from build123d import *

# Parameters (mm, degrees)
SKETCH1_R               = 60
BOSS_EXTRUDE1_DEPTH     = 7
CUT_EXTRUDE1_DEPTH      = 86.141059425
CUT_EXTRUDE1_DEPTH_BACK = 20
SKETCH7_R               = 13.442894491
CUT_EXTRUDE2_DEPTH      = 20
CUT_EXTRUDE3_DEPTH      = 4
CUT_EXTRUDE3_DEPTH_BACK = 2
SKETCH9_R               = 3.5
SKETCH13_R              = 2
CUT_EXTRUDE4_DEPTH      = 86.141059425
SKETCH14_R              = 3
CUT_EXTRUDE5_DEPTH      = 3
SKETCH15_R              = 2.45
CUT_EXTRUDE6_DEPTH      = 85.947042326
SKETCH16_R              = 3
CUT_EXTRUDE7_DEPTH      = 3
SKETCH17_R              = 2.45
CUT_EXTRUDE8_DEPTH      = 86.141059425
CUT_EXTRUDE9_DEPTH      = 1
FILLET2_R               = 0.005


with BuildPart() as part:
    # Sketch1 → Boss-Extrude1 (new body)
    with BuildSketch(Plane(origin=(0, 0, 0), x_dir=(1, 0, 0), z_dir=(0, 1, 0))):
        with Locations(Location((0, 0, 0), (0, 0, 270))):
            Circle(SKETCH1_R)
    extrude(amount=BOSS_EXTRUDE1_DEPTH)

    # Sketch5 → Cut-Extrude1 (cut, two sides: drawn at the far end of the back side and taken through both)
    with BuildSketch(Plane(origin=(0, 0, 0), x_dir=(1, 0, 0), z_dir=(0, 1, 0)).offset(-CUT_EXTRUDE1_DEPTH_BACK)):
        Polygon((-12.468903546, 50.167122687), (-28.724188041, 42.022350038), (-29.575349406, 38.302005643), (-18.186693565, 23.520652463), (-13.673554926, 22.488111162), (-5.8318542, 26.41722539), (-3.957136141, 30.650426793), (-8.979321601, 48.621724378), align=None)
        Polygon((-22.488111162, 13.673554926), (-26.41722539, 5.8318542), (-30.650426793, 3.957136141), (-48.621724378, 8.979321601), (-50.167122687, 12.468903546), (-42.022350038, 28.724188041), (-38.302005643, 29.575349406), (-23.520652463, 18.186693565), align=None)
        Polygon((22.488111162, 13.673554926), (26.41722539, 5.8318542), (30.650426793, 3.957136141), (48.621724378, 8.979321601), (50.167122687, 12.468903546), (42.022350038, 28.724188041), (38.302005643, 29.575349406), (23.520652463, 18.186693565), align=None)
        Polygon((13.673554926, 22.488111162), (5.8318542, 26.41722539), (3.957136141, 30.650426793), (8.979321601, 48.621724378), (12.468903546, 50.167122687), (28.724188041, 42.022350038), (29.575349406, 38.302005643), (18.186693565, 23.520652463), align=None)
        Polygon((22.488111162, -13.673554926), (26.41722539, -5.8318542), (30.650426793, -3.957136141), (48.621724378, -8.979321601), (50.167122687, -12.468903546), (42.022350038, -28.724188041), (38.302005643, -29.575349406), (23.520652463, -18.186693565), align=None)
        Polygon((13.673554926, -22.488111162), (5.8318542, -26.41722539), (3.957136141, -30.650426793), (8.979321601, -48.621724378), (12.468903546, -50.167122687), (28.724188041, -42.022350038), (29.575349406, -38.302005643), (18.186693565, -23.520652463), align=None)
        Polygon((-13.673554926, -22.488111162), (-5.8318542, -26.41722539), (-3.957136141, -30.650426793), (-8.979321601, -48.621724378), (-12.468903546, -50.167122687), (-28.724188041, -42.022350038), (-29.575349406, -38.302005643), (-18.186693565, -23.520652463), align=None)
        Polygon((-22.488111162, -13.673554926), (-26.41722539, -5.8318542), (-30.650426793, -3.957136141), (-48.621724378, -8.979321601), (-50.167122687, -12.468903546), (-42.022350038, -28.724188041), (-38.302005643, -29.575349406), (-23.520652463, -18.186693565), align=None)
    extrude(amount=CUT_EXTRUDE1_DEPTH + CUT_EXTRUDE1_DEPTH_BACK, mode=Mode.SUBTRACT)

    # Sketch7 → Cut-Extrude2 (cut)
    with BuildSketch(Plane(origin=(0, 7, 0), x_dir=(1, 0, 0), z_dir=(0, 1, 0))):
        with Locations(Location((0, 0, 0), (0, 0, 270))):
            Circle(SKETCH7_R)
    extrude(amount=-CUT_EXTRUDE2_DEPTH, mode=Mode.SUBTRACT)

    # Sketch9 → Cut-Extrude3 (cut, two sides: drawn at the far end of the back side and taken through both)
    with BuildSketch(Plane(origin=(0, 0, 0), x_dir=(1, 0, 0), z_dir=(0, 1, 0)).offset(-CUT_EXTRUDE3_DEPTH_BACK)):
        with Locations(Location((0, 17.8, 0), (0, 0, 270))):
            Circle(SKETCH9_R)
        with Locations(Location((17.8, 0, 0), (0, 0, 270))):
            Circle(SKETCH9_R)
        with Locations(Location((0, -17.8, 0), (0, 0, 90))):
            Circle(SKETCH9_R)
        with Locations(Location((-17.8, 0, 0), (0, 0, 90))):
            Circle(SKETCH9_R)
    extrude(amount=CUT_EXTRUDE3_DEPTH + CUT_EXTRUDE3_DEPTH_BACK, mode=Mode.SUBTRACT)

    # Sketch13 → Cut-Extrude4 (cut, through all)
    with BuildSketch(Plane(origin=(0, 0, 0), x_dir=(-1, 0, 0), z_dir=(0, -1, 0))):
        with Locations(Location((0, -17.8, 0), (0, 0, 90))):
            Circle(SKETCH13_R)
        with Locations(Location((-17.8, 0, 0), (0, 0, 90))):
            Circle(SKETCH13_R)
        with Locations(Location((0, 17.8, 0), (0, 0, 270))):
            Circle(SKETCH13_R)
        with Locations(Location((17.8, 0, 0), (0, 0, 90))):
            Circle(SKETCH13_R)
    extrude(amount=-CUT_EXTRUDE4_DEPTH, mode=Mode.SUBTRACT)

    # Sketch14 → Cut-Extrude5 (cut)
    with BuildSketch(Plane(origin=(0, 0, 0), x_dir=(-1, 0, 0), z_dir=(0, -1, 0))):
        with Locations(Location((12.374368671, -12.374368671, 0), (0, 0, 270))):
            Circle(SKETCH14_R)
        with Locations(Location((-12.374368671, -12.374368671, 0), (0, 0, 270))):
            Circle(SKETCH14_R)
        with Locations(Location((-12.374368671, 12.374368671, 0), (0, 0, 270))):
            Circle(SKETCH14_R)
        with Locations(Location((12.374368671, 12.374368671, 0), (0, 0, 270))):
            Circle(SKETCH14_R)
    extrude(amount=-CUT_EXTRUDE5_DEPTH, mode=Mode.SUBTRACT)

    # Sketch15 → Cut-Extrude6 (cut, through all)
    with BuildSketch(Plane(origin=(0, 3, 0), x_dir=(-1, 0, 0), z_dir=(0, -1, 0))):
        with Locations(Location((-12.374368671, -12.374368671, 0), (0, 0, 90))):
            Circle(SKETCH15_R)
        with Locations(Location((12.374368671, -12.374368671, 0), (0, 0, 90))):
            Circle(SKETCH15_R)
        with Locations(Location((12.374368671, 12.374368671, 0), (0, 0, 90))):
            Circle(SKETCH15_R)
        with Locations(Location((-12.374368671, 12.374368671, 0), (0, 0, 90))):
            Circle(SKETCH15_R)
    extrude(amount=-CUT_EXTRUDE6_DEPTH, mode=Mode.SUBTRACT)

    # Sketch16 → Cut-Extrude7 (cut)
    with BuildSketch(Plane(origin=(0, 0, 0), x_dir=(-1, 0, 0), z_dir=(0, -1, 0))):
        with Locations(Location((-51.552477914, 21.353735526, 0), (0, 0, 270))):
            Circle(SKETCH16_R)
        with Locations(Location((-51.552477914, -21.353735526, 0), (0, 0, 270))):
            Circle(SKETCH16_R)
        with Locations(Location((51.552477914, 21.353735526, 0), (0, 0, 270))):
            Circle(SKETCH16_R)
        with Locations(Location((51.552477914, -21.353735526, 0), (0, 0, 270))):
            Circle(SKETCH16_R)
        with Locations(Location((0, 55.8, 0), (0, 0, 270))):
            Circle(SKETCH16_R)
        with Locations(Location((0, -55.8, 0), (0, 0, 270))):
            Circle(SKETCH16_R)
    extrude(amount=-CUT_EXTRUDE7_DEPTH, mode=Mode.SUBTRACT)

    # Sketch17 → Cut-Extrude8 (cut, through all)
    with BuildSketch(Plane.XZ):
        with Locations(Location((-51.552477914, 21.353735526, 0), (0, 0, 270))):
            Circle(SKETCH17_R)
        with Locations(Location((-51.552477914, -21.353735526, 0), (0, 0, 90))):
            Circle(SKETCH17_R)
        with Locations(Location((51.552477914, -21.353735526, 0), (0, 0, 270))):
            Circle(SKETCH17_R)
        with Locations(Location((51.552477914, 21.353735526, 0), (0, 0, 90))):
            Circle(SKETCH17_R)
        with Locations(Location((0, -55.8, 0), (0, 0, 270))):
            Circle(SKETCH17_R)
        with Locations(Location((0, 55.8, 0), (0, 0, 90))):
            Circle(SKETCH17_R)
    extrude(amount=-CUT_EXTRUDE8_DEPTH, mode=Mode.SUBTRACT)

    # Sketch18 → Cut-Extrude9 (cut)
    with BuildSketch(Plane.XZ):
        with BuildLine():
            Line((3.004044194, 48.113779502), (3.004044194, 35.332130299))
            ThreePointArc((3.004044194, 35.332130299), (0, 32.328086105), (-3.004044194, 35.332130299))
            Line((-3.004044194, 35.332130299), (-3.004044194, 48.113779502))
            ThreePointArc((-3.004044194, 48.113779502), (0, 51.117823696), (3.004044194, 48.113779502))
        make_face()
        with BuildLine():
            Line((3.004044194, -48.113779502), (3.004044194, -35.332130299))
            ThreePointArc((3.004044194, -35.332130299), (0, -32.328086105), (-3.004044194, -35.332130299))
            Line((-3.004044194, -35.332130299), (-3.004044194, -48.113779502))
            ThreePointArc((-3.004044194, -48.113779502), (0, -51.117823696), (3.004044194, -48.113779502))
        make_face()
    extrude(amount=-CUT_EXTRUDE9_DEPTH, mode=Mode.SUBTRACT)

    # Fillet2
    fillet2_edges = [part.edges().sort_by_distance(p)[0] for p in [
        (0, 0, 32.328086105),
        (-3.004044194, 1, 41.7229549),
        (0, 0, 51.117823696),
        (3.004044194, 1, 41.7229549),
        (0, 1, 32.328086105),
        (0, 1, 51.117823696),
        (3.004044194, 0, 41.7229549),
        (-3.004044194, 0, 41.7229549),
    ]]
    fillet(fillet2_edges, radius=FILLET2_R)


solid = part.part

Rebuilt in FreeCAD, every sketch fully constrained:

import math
import FreeCAD as App
import Part
import Sketcher
Q = App.Units.Quantity


def edges_at(feature, points):
    """Names of the edges that pass closest to the given points."""
    edges = feature.Shape.Edges
    near = lambda p: min(range(len(edges)), key=lambda i: edges[i].distToShape(Part.Vertex(*p))[0])
    return sorted({f"Edge{near(p) + 1}" for p in points})

doc = App.newDocument("Part")
body = doc.addObject("PartDesign::Body", "Body")

sketch1 = body.newObject("Sketcher::SketchObject", "Sketch")
sketch1.AttachmentSupport = (doc.getObject("XZ_Plane"), [""])
sketch1.MapMode = "FlatFace"
sketch1.addGeometry(Part.Circle(App.Vector(0, 0, 0), App.Vector(0, 0, 1), 60), False)
sketch1.addConstraint([
    Sketcher.Constraint("Coincident", 0, 3, -1, 1),
    Sketcher.Constraint("Diameter", 0, Q("120 mm")),
])
pad1 = body.newObject("PartDesign::Pad", "Pad")
pad1.Profile = sketch1
pad1.Length = 7
pad1.Reversed = True

sketch2 = body.newObject("Sketcher::SketchObject", "Sketch001")
sketch2.AttachmentSupport = (doc.getObject("XZ_Plane"), [""])
sketch2.MapMode = "FlatFace"
sketch2.addGeometry([
    Part.LineSegment(App.Vector(-12.5, -50.2, 0), App.Vector(-28.7, -42, 0)),
    Part.LineSegment(App.Vector(-28.7, -42, 0), App.Vector(-29.6, -38.3, 0)),
    Part.LineSegment(App.Vector(-29.6, -38.3, 0), App.Vector(-18.2, -23.5, 0)),
    Part.LineSegment(App.Vector(-18.2, -23.5, 0), App.Vector(-13.7, -22.5, 0)),
    Part.LineSegment(App.Vector(-13.7, -22.5, 0), App.Vector(-5.8, -26.4, 0)),
    Part.LineSegment(App.Vector(-5.8, -26.4, 0), App.Vector(-4, -30.7, 0)),
    Part.LineSegment(App.Vector(-4, -30.7, 0), App.Vector(-9, -48.6, 0)),
    Part.LineSegment(App.Vector(-9, -48.6, 0), App.Vector(-12.5, -50.2, 0)),
    Part.LineSegment(App.Vector(-26.4, -5.8, 0), App.Vector(-22.5, -13.7, 0)),
    Part.LineSegment(App.Vector(-22.5, -13.7, 0), App.Vector(-23.5, -18.2, 0)),
    Part.LineSegment(App.Vector(-23.5, -18.2, 0), App.Vector(-38.3, -29.6, 0)),
    Part.LineSegment(App.Vector(-38.3, -29.6, 0), App.Vector(-42, -28.7, 0)),
    Part.LineSegment(App.Vector(-42, -28.7, 0), App.Vector(-50.2, -12.5, 0)),
    Part.LineSegment(App.Vector(-50.2, -12.5, 0), App.Vector(-48.6, -9, 0)),
    Part.LineSegment(App.Vector(-48.6, -9, 0), App.Vector(-30.7, -4, 0)),
    Part.LineSegment(App.Vector(-30.7, -4, 0), App.Vector(-26.4, -5.8, 0)),
    Part.LineSegment(App.Vector(22.5, -13.7, 0), App.Vector(26.4, -5.8, 0)),
    Part.LineSegment(App.Vector(26.4, -5.8, 0), App.Vector(30.7, -4, 0)),
    Part.LineSegment(App.Vector(30.7, -4, 0), App.Vector(48.6, -9, 0)),
    Part.LineSegment(App.Vector(48.6, -9, 0), App.Vector(50.2, -12.5, 0)),
    Part.LineSegment(App.Vector(50.2, -12.5, 0), App.Vector(42, -28.7, 0)),
    Part.LineSegment(App.Vector(42, -28.7, 0), App.Vector(38.3, -29.6, 0)),
    Part.LineSegment(App.Vector(38.3, -29.6, 0), App.Vector(23.5, -18.2, 0)),
    Part.LineSegment(App.Vector(23.5, -18.2, 0), App.Vector(22.5, -13.7, 0)),
    Part.LineSegment(App.Vector(5.8, -26.4, 0), App.Vector(13.7, -22.5, 0)),
    Part.LineSegment(App.Vector(13.7, -22.5, 0), App.Vector(18.2, -23.5, 0)),
    Part.LineSegment(App.Vector(18.2, -23.5, 0), App.Vector(29.6, -38.3, 0)),
    Part.LineSegment(App.Vector(29.6, -38.3, 0), App.Vector(28.7, -42, 0)),
    Part.LineSegment(App.Vector(28.7, -42, 0), App.Vector(12.5, -50.2, 0)),
    Part.LineSegment(App.Vector(12.5, -50.2, 0), App.Vector(9, -48.6, 0)),
    Part.LineSegment(App.Vector(9, -48.6, 0), App.Vector(4, -30.7, 0)),
    Part.LineSegment(App.Vector(4, -30.7, 0), App.Vector(5.8, -26.4, 0)),
    Part.LineSegment(App.Vector(26.4, 5.8, 0), App.Vector(22.5, 13.7, 0)),
    Part.LineSegment(App.Vector(22.5, 13.7, 0), App.Vector(23.5, 18.2, 0)),
    Part.LineSegment(App.Vector(23.5, 18.2, 0), App.Vector(38.3, 29.6, 0)),
    Part.LineSegment(App.Vector(38.3, 29.6, 0), App.Vector(42, 28.7, 0)),
    Part.LineSegment(App.Vector(42, 28.7, 0), App.Vector(50.2, 12.5, 0)),
    Part.LineSegment(App.Vector(50.2, 12.5, 0), App.Vector(48.6, 9, 0)),
    Part.LineSegment(App.Vector(48.6, 9, 0), App.Vector(30.7, 4, 0)),
    Part.LineSegment(App.Vector(30.7, 4, 0), App.Vector(26.4, 5.8, 0)),
    Part.LineSegment(App.Vector(13.7, 22.5, 0), App.Vector(5.8, 26.4, 0)),
    Part.LineSegment(App.Vector(5.8, 26.4, 0), App.Vector(4, 30.7, 0)),
    Part.LineSegment(App.Vector(4, 30.7, 0), App.Vector(9, 48.6, 0)),
    Part.LineSegment(App.Vector(9, 48.6, 0), App.Vector(12.5, 50.2, 0)),
    Part.LineSegment(App.Vector(12.5, 50.2, 0), App.Vector(28.7, 42, 0)),
    Part.LineSegment(App.Vector(28.7, 42, 0), App.Vector(29.6, 38.3, 0)),
    Part.LineSegment(App.Vector(29.6, 38.3, 0), App.Vector(18.2, 23.5, 0)),
    Part.LineSegment(App.Vector(18.2, 23.5, 0), App.Vector(13.7, 22.5, 0)),
    Part.LineSegment(App.Vector(-5.8, 26.4, 0), App.Vector(-13.7, 22.5, 0)),
    Part.LineSegment(App.Vector(-13.7, 22.5, 0), App.Vector(-18.2, 23.5, 0)),
    Part.LineSegment(App.Vector(-18.2, 23.5, 0), App.Vector(-29.6, 38.3, 0)),
    Part.LineSegment(App.Vector(-29.6, 38.3, 0), App.Vector(-28.7, 42, 0)),
    Part.LineSegment(App.Vector(-28.7, 42, 0), App.Vector(-12.5, 50.2, 0)),
    Part.LineSegment(App.Vector(-12.5, 50.2, 0), App.Vector(-9, 48.6, 0)),
    Part.LineSegment(App.Vector(-9, 48.6, 0), App.Vector(-4, 30.7, 0)),
    Part.LineSegment(App.Vector(-4, 30.7, 0), App.Vector(-5.8, 26.4, 0)),
    Part.LineSegment(App.Vector(-22.5, 13.7, 0), App.Vector(-26.4, 5.8, 0)),
    Part.LineSegment(App.Vector(-26.4, 5.8, 0), App.Vector(-30.7, 4, 0)),
    Part.LineSegment(App.Vector(-30.7, 4, 0), App.Vector(-48.6, 9, 0)),
    Part.LineSegment(App.Vector(-48.6, 9, 0), App.Vector(-50.2, 12.5, 0)),
    Part.LineSegment(App.Vector(-50.2, 12.5, 0), App.Vector(-42, 28.7, 0)),
    Part.LineSegment(App.Vector(-42, 28.7, 0), App.Vector(-38.3, 29.6, 0)),
    Part.LineSegment(App.Vector(-38.3, 29.6, 0), App.Vector(-23.5, 18.2, 0)),
    Part.LineSegment(App.Vector(-23.5, 18.2, 0), App.Vector(-22.5, 13.7, 0)),
], False)
sketch2.addConstraint([
    Sketcher.Constraint("Coincident", 0, 2, 1, 1),
    Sketcher.Constraint("Coincident", 1, 2, 2, 1),
    Sketcher.Constraint("Coincident", 2, 2, 3, 1),
    Sketcher.Constraint("Coincident", 3, 2, 4, 1),
    Sketcher.Constraint("Coincident", 4, 2, 5, 1),
    Sketcher.Constraint("Coincident", 5, 2, 6, 1),
    Sketcher.Constraint("Coincident", 6, 2, 7, 1),
    Sketcher.Constraint("Coincident", 7, 2, 0, 1),
    Sketcher.Constraint("Coincident", 8, 2, 9, 1),
    Sketcher.Constraint("Coincident", 9, 2, 10, 1),
    Sketcher.Constraint("Coincident", 10, 2, 11, 1),
    Sketcher.Constraint("Coincident", 11, 2, 12, 1),
    Sketcher.Constraint("Coincident", 12, 2, 13, 1),
    Sketcher.Constraint("Coincident", 13, 2, 14, 1),
    Sketcher.Constraint("Coincident", 14, 2, 15, 1),
    Sketcher.Constraint("Coincident", 15, 2, 8, 1),
    Sketcher.Constraint("Coincident", 16, 2, 17, 1),
    Sketcher.Constraint("Coincident", 17, 2, 18, 1),
    Sketcher.Constraint("Coincident", 18, 2, 19, 1),
    Sketcher.Constraint("Coincident", 19, 2, 20, 1),
    Sketcher.Constraint("Coincident", 20, 2, 21, 1),
    Sketcher.Constraint("Coincident", 21, 2, 22, 1),
    Sketcher.Constraint("Coincident", 22, 2, 23, 1),
    Sketcher.Constraint("Coincident", 23, 2, 16, 1),
    Sketcher.Constraint("Coincident", 24, 2, 25, 1),
    Sketcher.Constraint("Coincident", 25, 2, 26, 1),
    Sketcher.Constraint("Coincident", 26, 2, 27, 1),
    Sketcher.Constraint("Coincident", 27, 2, 28, 1),
    Sketcher.Constraint("Coincident", 28, 2, 29, 1),
    Sketcher.Constraint("Coincident", 29, 2, 30, 1),
    Sketcher.Constraint("Coincident", 30, 2, 31, 1),
    Sketcher.Constraint("Coincident", 31, 2, 24, 1),
    Sketcher.Constraint("Coincident", 32, 2, 33, 1),
    Sketcher.Constraint("Coincident", 33, 2, 34, 1),
    Sketcher.Constraint("Coincident", 34, 2, 35, 1),
    Sketcher.Constraint("Coincident", 35, 2, 36, 1),
    Sketcher.Constraint("Coincident", 36, 2, 37, 1),
    Sketcher.Constraint("Coincident", 37, 2, 38, 1),
    Sketcher.Constraint("Coincident", 38, 2, 39, 1),
    Sketcher.Constraint("Coincident", 39, 2, 32, 1),
    Sketcher.Constraint("Coincident", 40, 2, 41, 1),
    Sketcher.Constraint("Coincident", 41, 2, 42, 1),
    Sketcher.Constraint("Coincident", 42, 2, 43, 1),
    Sketcher.Constraint("Coincident", 43, 2, 44, 1),
    Sketcher.Constraint("Coincident", 44, 2, 45, 1),
    Sketcher.Constraint("Coincident", 45, 2, 46, 1),
    Sketcher.Constraint("Coincident", 46, 2, 47, 1),
    Sketcher.Constraint("Coincident", 47, 2, 40, 1),
    Sketcher.Constraint("Coincident", 48, 2, 49, 1),
    Sketcher.Constraint("Coincident", 49, 2, 50, 1),
    Sketcher.Constraint("Coincident", 50, 2, 51, 1),
    Sketcher.Constraint("Coincident", 51, 2, 52, 1),
    Sketcher.Constraint("Coincident", 52, 2, 53, 1),
    Sketcher.Constraint("Coincident", 53, 2, 54, 1),
    Sketcher.Constraint("Coincident", 54, 2, 55, 1),
    Sketcher.Constraint("Coincident", 55, 2, 48, 1),
    Sketcher.Constraint("Coincident", 56, 2, 57, 1),
    Sketcher.Constraint("Coincident", 57, 2, 58, 1),
    Sketcher.Constraint("Coincident", 58, 2, 59, 1),
    Sketcher.Constraint("Coincident", 59, 2, 60, 1),
    Sketcher.Constraint("Coincident", 60, 2, 61, 1),
    Sketcher.Constraint("Coincident", 61, 2, 62, 1),
    Sketcher.Constraint("Coincident", 62, 2, 63, 1),
    Sketcher.Constraint("Coincident", 63, 2, 56, 1),
    Sketcher.Constraint("Symmetric", 8, 2, 32, 2, -1, 1),
    Sketcher.Constraint("Symmetric", 9, 2, 33, 2, -1, 1),
    Sketcher.Constraint("Symmetric", 10, 2, 34, 2, -1, 1),
    Sketcher.Constraint("Symmetric", 11, 2, 35, 2, -1, 1),
    Sketcher.Constraint("Symmetric", 12, 2, 36, 2, -1, 1),
    Sketcher.Constraint("Symmetric", 13, 2, 37, 2, -1, 1),
    Sketcher.Constraint("Symmetric", 14, 2, 38, 2, -1, 1),
    Sketcher.Constraint("Symmetric", 15, 2, 39, 2, -1, 1),
    Sketcher.Constraint("Symmetric", 4, 2, 40, 2, -1, 1),
    Sketcher.Constraint("Symmetric", 5, 2, 41, 2, -1, 1),
    Sketcher.Constraint("Symmetric", 6, 2, 42, 2, -1, 1),
    Sketcher.Constraint("Symmetric", 7, 2, 43, 2, -1, 1),
    Sketcher.Constraint("Symmetric", 0, 2, 44, 2, -1, 1),
    Sketcher.Constraint("Symmetric", 1, 2, 45, 2, -1, 1),
    Sketcher.Constraint("Symmetric", 2, 2, 46, 2, -1, 1),
    Sketcher.Constraint("Symmetric", 3, 2, 47, 2, -1, 1),
    Sketcher.Constraint("Symmetric", 24, 2, 48, 2, -1, 1),
    Sketcher.Constraint("Symmetric", 25, 2, 49, 2, -1, 1),
    Sketcher.Constraint("Symmetric", 26, 2, 50, 2, -1, 1),
    Sketcher.Constraint("Symmetric", 27, 2, 51, 2, -1, 1),
    Sketcher.Constraint("Symmetric", 28, 2, 52, 2, -1, 1),
    Sketcher.Constraint("Symmetric", 29, 2, 53, 2, -1, 1),
    Sketcher.Constraint("Symmetric", 30, 2, 54, 2, -1, 1),
    Sketcher.Constraint("Symmetric", 31, 2, 55, 2, -1, 1),
    Sketcher.Constraint("Symmetric", 16, 2, 56, 2, -1, 1),
    Sketcher.Constraint("Symmetric", 17, 2, 57, 2, -1, 1),
    Sketcher.Constraint("Symmetric", 18, 2, 58, 2, -1, 1),
    Sketcher.Constraint("Symmetric", 19, 2, 59, 2, -1, 1),
    Sketcher.Constraint("Symmetric", 20, 2, 60, 2, -1, 1),
    Sketcher.Constraint("Symmetric", 21, 2, 61, 2, -1, 1),
    Sketcher.Constraint("Symmetric", 22, 2, 62, 2, -1, 1),
    Sketcher.Constraint("Symmetric", 23, 2, 63, 2, -1, 1),
    Sketcher.Constraint("Symmetric", 15, 2, 16, 2, -2),
    Sketcher.Constraint("Symmetric", 14, 2, 17, 2, -2),
    Sketcher.Constraint("Symmetric", 13, 2, 18, 2, -2),
    Sketcher.Constraint("Symmetric", 12, 2, 19, 2, -2),
    Sketcher.Constraint("Symmetric", 11, 2, 20, 2, -2),
    Sketcher.Constraint("Symmetric", 10, 2, 21, 2, -2),
    Sketcher.Constraint("Symmetric", 9, 2, 22, 2, -2),
    Sketcher.Constraint("Symmetric", 8, 2, 23, 2, -2),
    Sketcher.Constraint("Symmetric", 3, 2, 24, 2, -2),
    Sketcher.Constraint("Symmetric", 2, 2, 25, 2, -2),
    Sketcher.Constraint("Symmetric", 1, 2, 26, 2, -2),
    Sketcher.Constraint("Symmetric", 0, 2, 27, 2, -2),
    Sketcher.Constraint("Symmetric", 7, 2, 28, 2, -2),
    Sketcher.Constraint("Symmetric", 6, 2, 29, 2, -2),
    Sketcher.Constraint("Symmetric", 5, 2, 30, 2, -2),
    Sketcher.Constraint("Symmetric", 4, 2, 31, 2, -2),
    Sketcher.Constraint("Perpendicular", 1, 3),
    Sketcher.Constraint("Parallel", 0, 4),
    Sketcher.Constraint("Perpendicular", 5, 7),
    Sketcher.Constraint("Perpendicular", 9, 11),
    Sketcher.Constraint("Parallel", 8, 12),
    Sketcher.Constraint("Perpendicular", 13, 15),
    Sketcher.Constraint("Perpendicular", 4, 16),
    Sketcher.Constraint("Parallel", 7, 17),
    Sketcher.Constraint("Perpendicular", 6, 18),
    Sketcher.Constraint("Parallel", 3, 21),
    Sketcher.Constraint("Perpendicular", 2, 22),
    Sketcher.Constraint("Equal", 3, 5),
    Sketcher.Constraint("Equal", 2, 6),
    Sketcher.Constraint("Equal", 1, 7),
    Sketcher.Constraint("Equal", 4, 8),
    Sketcher.Constraint("Equal", 5, 9),
    Sketcher.Constraint("Equal", 6, 10),
    Sketcher.Constraint("Equal", 7, 11),
    Sketcher.Constraint("Equal", 0, 12),
    Sketcher.Constraint("Equal", 11, 13),
    Sketcher.Constraint("Distance", 1, Q("3.816469 mm")),
    Sketcher.Constraint("DistanceX", 0, 2, -1, 1, Q("28.724188 mm")),
    Sketcher.Constraint("DistanceY", 0, 2, -1, 1, Q("42.02235 mm")),
    Sketcher.Constraint("DistanceX", 1, 2, -1, 1, Q("29.575349 mm")),
    Sketcher.Constraint("DistanceY", 3, 2, -1, 1, Q("22.488111 mm")),
    Sketcher.Constraint("DistanceX", 6, 2, -1, 1, Q("8.979322 mm")),
    Sketcher.Constraint("DistanceX", 8, 2, -1, 1, Q("22.488111 mm")),
    Sketcher.Constraint("DistanceY", 10, 2, -1, 1, Q("29.575349 mm")),
    Sketcher.Constraint("Distance", 0, Q("18.181628 mm")),
    Sketcher.Constraint("Distance", 2, Q("18.659847 mm")),
    Sketcher.Constraint("Distance", 3, Q("4.629747 mm")),
    Sketcher.Constraint("Distance", 4, Q("8.770987 mm")),
])
pocket1 = body.newObject("PartDesign::Pocket", "Pocket")
pocket1.Profile = sketch2
pocket1.Type = "ThroughAll"
pocket1.Midplane = True

sketch3 = body.newObject("Sketcher::SketchObject", "Sketch002")
sketch3.AttachmentSupport = (doc.getObject("XZ_Plane"), [""])
sketch3.MapMode = "FlatFace"
sketch3.AttachmentOffset = App.Placement(App.Vector(0, 0, -7), App.Rotation())
sketch3.addGeometry(Part.Circle(App.Vector(0, 0, 0), App.Vector(0, 0, 1), 13), False)
sketch3.addConstraint([
    Sketcher.Constraint("Coincident", 0, 3, -1, 1),
    Sketcher.Constraint("Diameter", 0, Q("26.885789 mm")),
])
pocket2 = body.newObject("PartDesign::Pocket", "Pocket001")
pocket2.Profile = sketch3
pocket2.Length = 20
pocket2.Reversed = True

sketch4 = body.newObject("Sketcher::SketchObject", "Sketch003")
sketch4.AttachmentSupport = (doc.getObject("XZ_Plane"), [""])
sketch4.MapMode = "FlatFace"
sketch4.addGeometry([
    Part.Circle(App.Vector(0, -17.8, 0), App.Vector(0, 0, 1), 3.5),
    Part.Circle(App.Vector(17.8, 0, 0), App.Vector(0, 0, 1), 3.5),
    Part.Circle(App.Vector(0, 17.8, 0), App.Vector(0, 0, 1), 3.5),
    Part.Circle(App.Vector(-17.8, 0, 0), App.Vector(0, 0, 1), 3.5),
], False)
sketch4.addConstraint([
    Sketcher.Constraint("Equal", 0, 1),
    Sketcher.Constraint("Equal", 1, 2),
    Sketcher.Constraint("Equal", 2, 3),
    Sketcher.Constraint("Symmetric", 0, 3, 2, 3, -1, 1),
    Sketcher.Constraint("Symmetric", 1, 3, 3, 3, -1, 1),
    Sketcher.Constraint("PointOnObject", 0, 3, -2),
    Sketcher.Constraint("PointOnObject", 1, 3, -1),
    Sketcher.Constraint("Diameter", 0, Q("7 mm")),
    Sketcher.Constraint("DistanceY", 0, 3, -1, 1, Q("17.8 mm")),
    Sketcher.Constraint("DistanceX", -1, 1, 1, 3, Q("17.8 mm")),
])
pocket3 = body.newObject("PartDesign::Pocket", "Pocket002")
pocket3.Profile = sketch4
pocket3.Type = "TwoLengths"
pocket3.Length = 4
pocket3.Length2 = 2

sketch5 = body.newObject("Sketcher::SketchObject", "Sketch004")
sketch5.AttachmentSupport = (doc.getObject("XZ_Plane"), [""])
sketch5.MapMode = "FlatFace"
sketch5.addGeometry([
    Part.Circle(App.Vector(0, 17.8, 0), App.Vector(0, 0, 1), 2),
    Part.Circle(App.Vector(17.8, 0, 0), App.Vector(0, 0, 1), 2),
    Part.Circle(App.Vector(0, -17.8, 0), App.Vector(0, 0, 1), 2),
    Part.Circle(App.Vector(-17.8, 0, 0), App.Vector(0, 0, 1), 2),
], False)
sketch5.addConstraint([
    Sketcher.Constraint("Equal", 0, 1),
    Sketcher.Constraint("Equal", 1, 2),
    Sketcher.Constraint("Equal", 2, 3),
    Sketcher.Constraint("Symmetric", 0, 3, 2, 3, -1, 1),
    Sketcher.Constraint("Symmetric", 1, 3, 3, 3, -1, 1),
    Sketcher.Constraint("PointOnObject", 0, 3, -2),
    Sketcher.Constraint("PointOnObject", 1, 3, -1),
    Sketcher.Constraint("Diameter", 0, Q("4 mm")),
    Sketcher.Constraint("DistanceY", -1, 1, 0, 3, Q("17.8 mm")),
    Sketcher.Constraint("DistanceX", -1, 1, 1, 3, Q("17.8 mm")),
])
pocket4 = body.newObject("PartDesign::Pocket", "Pocket003")
pocket4.Profile = sketch5
pocket4.Type = "ThroughAll"

sketch6 = body.newObject("Sketcher::SketchObject", "Sketch005")
sketch6.AttachmentSupport = (doc.getObject("XZ_Plane"), [""])
sketch6.MapMode = "FlatFace"
sketch6.addGeometry([
    Part.Circle(App.Vector(-12.4, 12.4, 0), App.Vector(0, 0, 1), 3),
    Part.Circle(App.Vector(12.4, 12.4, 0), App.Vector(0, 0, 1), 3),
    Part.Circle(App.Vector(12.4, -12.4, 0), App.Vector(0, 0, 1), 3),
    Part.Circle(App.Vector(-12.4, -12.4, 0), App.Vector(0, 0, 1), 3),
], False)
sketch6.addConstraint([
    Sketcher.Constraint("Equal", 0, 1),
    Sketcher.Constraint("Equal", 1, 2),
    Sketcher.Constraint("Equal", 2, 3),
    Sketcher.Constraint("Symmetric", 0, 3, 2, 3, -1, 1),
    Sketcher.Constraint("Symmetric", 1, 3, 3, 3, -1, 1),
    Sketcher.Constraint("Symmetric", 0, 3, 1, 3, -2),
    Sketcher.Constraint("Diameter", 0, Q("6 mm")),
    Sketcher.Constraint("DistanceX", 0, 3, -1, 1, Q("12.374369 mm")),
    Sketcher.Constraint("DistanceY", -1, 1, 0, 3, Q("12.374369 mm")),
])
pocket5 = body.newObject("PartDesign::Pocket", "Pocket004")
pocket5.Profile = sketch6
pocket5.Length = 3

sketch7 = body.newObject("Sketcher::SketchObject", "Sketch006")
sketch7.AttachmentSupport = (doc.getObject("XZ_Plane"), [""])
sketch7.MapMode = "FlatFace"
sketch7.AttachmentOffset = App.Placement(App.Vector(0, 0, -3), App.Rotation())
sketch7.addGeometry([
    Part.Circle(App.Vector(12.4, 12.4, 0), App.Vector(0, 0, 1), 2.5),
    Part.Circle(App.Vector(-12.4, 12.4, 0), App.Vector(0, 0, 1), 2.5),
    Part.Circle(App.Vector(-12.4, -12.4, 0), App.Vector(0, 0, 1), 2.5),
    Part.Circle(App.Vector(12.4, -12.4, 0), App.Vector(0, 0, 1), 2.5),
], False)
sketch7.addConstraint([
    Sketcher.Constraint("Equal", 0, 1),
    Sketcher.Constraint("Equal", 1, 2),
    Sketcher.Constraint("Equal", 2, 3),
    Sketcher.Constraint("Symmetric", 0, 3, 2, 3, -1, 1),
    Sketcher.Constraint("Symmetric", 1, 3, 3, 3, -1, 1),
    Sketcher.Constraint("Symmetric", 0, 3, 1, 3, -2),
    Sketcher.Constraint("Diameter", 0, Q("4.9 mm")),
    Sketcher.Constraint("DistanceX", -1, 1, 0, 3, Q("12.374369 mm")),
    Sketcher.Constraint("DistanceY", -1, 1, 0, 3, Q("12.374369 mm")),
])
pocket6 = body.newObject("PartDesign::Pocket", "Pocket005")
pocket6.Profile = sketch7
pocket6.Type = "ThroughAll"

sketch8 = body.newObject("Sketcher::SketchObject", "Sketch007")
sketch8.AttachmentSupport = (doc.getObject("XZ_Plane"), [""])
sketch8.MapMode = "FlatFace"
sketch8.addGeometry([
    Part.Circle(App.Vector(51.6, -21.4, 0), App.Vector(0, 0, 1), 3),
    Part.Circle(App.Vector(51.6, 21.4, 0), App.Vector(0, 0, 1), 3),
    Part.Circle(App.Vector(-51.6, -21.4, 0), App.Vector(0, 0, 1), 3),
    Part.Circle(App.Vector(-51.6, 21.4, 0), App.Vector(0, 0, 1), 3),
    Part.Circle(App.Vector(0, -55.8, 0), App.Vector(0, 0, 1), 3),
    Part.Circle(App.Vector(0, 55.8, 0), App.Vector(0, 0, 1), 3),
], False)
sketch8.addConstraint([
    Sketcher.Constraint("Equal", 0, 1),
    Sketcher.Constraint("Equal", 1, 2),
    Sketcher.Constraint("Equal", 2, 3),
    Sketcher.Constraint("Equal", 3, 4),
    Sketcher.Constraint("Equal", 4, 5),
    Sketcher.Constraint("Symmetric", 1, 3, 2, 3, -1, 1),
    Sketcher.Constraint("Symmetric", 0, 3, 3, 3, -1, 1),
    Sketcher.Constraint("Symmetric", 4, 3, 5, 3, -1, 1),
    Sketcher.Constraint("Symmetric", 0, 3, 2, 3, -2),
    Sketcher.Constraint("PointOnObject", 4, 3, -2),
    Sketcher.Constraint("Diameter", 0, Q("6 mm")),
    Sketcher.Constraint("DistanceY", 4, 3, -1, 1, Q("55.8 mm")),
    Sketcher.Constraint("DistanceY", 0, 3, 1, 3, Q("42.707471 mm")),
    Sketcher.Constraint("DistanceX", -1, 1, 0, 3, Q("51.552478 mm")),
])
pocket7 = body.newObject("PartDesign::Pocket", "Pocket006")
pocket7.Profile = sketch8
pocket7.Length = 3

sketch9 = body.newObject("Sketcher::SketchObject", "Sketch008")
sketch9.AttachmentSupport = (doc.getObject("XZ_Plane"), [""])
sketch9.MapMode = "FlatFace"
sketch9.addGeometry([
    Part.Circle(App.Vector(-51.6, 21.4, 0), App.Vector(0, 0, 1), 2.5),
    Part.Circle(App.Vector(-51.6, -21.4, 0), App.Vector(0, 0, 1), 2.5),
    Part.Circle(App.Vector(51.6, -21.4, 0), App.Vector(0, 0, 1), 2.5),
    Part.Circle(App.Vector(51.6, 21.4, 0), App.Vector(0, 0, 1), 2.5),
    Part.Circle(App.Vector(0, -55.8, 0), App.Vector(0, 0, 1), 2.5),
    Part.Circle(App.Vector(0, 55.8, 0), App.Vector(0, 0, 1), 2.5),
], False)
sketch9.addConstraint([
    Sketcher.Constraint("Equal", 0, 1),
    Sketcher.Constraint("Equal", 1, 2),
    Sketcher.Constraint("Equal", 2, 3),
    Sketcher.Constraint("Equal", 3, 4),
    Sketcher.Constraint("Equal", 4, 5),
    Sketcher.Constraint("Symmetric", 0, 3, 2, 3, -1, 1),
    Sketcher.Constraint("Symmetric", 1, 3, 3, 3, -1, 1),
    Sketcher.Constraint("Symmetric", 4, 3, 5, 3, -1, 1),
    Sketcher.Constraint("Symmetric", 1, 3, 2, 3, -2),
    Sketcher.Constraint("PointOnObject", 4, 3, -2),
    Sketcher.Constraint("Diameter", 0, Q("4.9 mm")),
    Sketcher.Constraint("DistanceY", 4, 3, -1, 1, Q("55.8 mm")),
    Sketcher.Constraint("DistanceY", 1, 3, 0, 3, Q("42.707471 mm")),
    Sketcher.Constraint("DistanceX", 0, 3, -1, 1, Q("51.552478 mm")),
])
pocket8 = body.newObject("PartDesign::Pocket", "Pocket007")
pocket8.Profile = sketch9
pocket8.Type = "ThroughAll"

sketch10 = body.newObject("Sketcher::SketchObject", "Sketch009")
sketch10.AttachmentSupport = (doc.getObject("XZ_Plane"), [""])
sketch10.MapMode = "FlatFace"
sketch10.addGeometry([
    Part.LineSegment(App.Vector(3, 35.3, 0), App.Vector(3, 48.1, 0)),
    Part.ArcOfCircle(Part.Circle(App.Vector(0, 48.1, 0), App.Vector(0, 0, 1), 3), math.radians(0), math.radians(180)),
    Part.LineSegment(App.Vector(-3, 48.1, 0), App.Vector(-3, 35.3, 0)),
    Part.ArcOfCircle(Part.Circle(App.Vector(0, 35.3, 0), App.Vector(0, 0, 1), 3), math.radians(180), math.radians(360)),
    Part.LineSegment(App.Vector(3, -48.1, 0), App.Vector(3, -35.3, 0)),
    Part.ArcOfCircle(Part.Circle(App.Vector(0, -35.3, 0), App.Vector(0, 0, 1), 3), math.radians(0), math.radians(180)),
    Part.LineSegment(App.Vector(-3, -35.3, 0), App.Vector(-3, -48.1, 0)),
    Part.ArcOfCircle(Part.Circle(App.Vector(0, -48.1, 0), App.Vector(0, 0, 1), 3), math.radians(180), math.radians(360)),
], False)
sketch10.addConstraint([
    Sketcher.Constraint("Tangent", 0, 2, 1, 1),
    Sketcher.Constraint("Tangent", 1, 2, 2, 1),
    Sketcher.Constraint("Tangent", 2, 2, 3, 1),
    Sketcher.Constraint("Tangent", 3, 2, 0, 1),
    Sketcher.Constraint("Tangent", 4, 2, 5, 1),
    Sketcher.Constraint("Tangent", 5, 2, 6, 1),
    Sketcher.Constraint("Tangent", 6, 2, 7, 1),
    Sketcher.Constraint("Tangent", 7, 2, 4, 1),
    Sketcher.Constraint("Vertical", 0),
    Sketcher.Constraint("Vertical", 2),
    Sketcher.Constraint("Vertical", 4),
    Sketcher.Constraint("Vertical", 6),
    Sketcher.Constraint("Equal", 3, 5),
    Sketcher.Constraint("Symmetric", 3, 3, 5, 3, -1, 1),
    Sketcher.Constraint("Symmetric", 1, 3, 7, 3, -1),
    Sketcher.Constraint("Radius", 1, Q("3.004044 mm")),
    Sketcher.Constraint("DistanceY", 0, 1, 0, 2, Q("12.781649 mm")),
    Sketcher.Constraint("DistanceY", -1, 1, 1, 3, Q("48.11378 mm")),
])
pocket9 = body.newObject("PartDesign::Pocket", "Pocket008")
pocket9.Profile = sketch10
pocket9.Length = 1
doc.recompute()

fillet = body.newObject("PartDesign::Fillet", "Fillet")
fillet.Base = (pocket9, edges_at(pocket9, [
    (0, 0, 32.328),
    (-3.004, 1, 41.723),
    (0, 0, 51.118),
    (3.004, 1, 41.723),
    (0, 1, 32.328),
    (0, 1, 51.118),
    (3.004, 0, 41.723),
    (-3.004, 0, 41.723),
]))
fillet.Radius = 0.005

doc.recompute()
